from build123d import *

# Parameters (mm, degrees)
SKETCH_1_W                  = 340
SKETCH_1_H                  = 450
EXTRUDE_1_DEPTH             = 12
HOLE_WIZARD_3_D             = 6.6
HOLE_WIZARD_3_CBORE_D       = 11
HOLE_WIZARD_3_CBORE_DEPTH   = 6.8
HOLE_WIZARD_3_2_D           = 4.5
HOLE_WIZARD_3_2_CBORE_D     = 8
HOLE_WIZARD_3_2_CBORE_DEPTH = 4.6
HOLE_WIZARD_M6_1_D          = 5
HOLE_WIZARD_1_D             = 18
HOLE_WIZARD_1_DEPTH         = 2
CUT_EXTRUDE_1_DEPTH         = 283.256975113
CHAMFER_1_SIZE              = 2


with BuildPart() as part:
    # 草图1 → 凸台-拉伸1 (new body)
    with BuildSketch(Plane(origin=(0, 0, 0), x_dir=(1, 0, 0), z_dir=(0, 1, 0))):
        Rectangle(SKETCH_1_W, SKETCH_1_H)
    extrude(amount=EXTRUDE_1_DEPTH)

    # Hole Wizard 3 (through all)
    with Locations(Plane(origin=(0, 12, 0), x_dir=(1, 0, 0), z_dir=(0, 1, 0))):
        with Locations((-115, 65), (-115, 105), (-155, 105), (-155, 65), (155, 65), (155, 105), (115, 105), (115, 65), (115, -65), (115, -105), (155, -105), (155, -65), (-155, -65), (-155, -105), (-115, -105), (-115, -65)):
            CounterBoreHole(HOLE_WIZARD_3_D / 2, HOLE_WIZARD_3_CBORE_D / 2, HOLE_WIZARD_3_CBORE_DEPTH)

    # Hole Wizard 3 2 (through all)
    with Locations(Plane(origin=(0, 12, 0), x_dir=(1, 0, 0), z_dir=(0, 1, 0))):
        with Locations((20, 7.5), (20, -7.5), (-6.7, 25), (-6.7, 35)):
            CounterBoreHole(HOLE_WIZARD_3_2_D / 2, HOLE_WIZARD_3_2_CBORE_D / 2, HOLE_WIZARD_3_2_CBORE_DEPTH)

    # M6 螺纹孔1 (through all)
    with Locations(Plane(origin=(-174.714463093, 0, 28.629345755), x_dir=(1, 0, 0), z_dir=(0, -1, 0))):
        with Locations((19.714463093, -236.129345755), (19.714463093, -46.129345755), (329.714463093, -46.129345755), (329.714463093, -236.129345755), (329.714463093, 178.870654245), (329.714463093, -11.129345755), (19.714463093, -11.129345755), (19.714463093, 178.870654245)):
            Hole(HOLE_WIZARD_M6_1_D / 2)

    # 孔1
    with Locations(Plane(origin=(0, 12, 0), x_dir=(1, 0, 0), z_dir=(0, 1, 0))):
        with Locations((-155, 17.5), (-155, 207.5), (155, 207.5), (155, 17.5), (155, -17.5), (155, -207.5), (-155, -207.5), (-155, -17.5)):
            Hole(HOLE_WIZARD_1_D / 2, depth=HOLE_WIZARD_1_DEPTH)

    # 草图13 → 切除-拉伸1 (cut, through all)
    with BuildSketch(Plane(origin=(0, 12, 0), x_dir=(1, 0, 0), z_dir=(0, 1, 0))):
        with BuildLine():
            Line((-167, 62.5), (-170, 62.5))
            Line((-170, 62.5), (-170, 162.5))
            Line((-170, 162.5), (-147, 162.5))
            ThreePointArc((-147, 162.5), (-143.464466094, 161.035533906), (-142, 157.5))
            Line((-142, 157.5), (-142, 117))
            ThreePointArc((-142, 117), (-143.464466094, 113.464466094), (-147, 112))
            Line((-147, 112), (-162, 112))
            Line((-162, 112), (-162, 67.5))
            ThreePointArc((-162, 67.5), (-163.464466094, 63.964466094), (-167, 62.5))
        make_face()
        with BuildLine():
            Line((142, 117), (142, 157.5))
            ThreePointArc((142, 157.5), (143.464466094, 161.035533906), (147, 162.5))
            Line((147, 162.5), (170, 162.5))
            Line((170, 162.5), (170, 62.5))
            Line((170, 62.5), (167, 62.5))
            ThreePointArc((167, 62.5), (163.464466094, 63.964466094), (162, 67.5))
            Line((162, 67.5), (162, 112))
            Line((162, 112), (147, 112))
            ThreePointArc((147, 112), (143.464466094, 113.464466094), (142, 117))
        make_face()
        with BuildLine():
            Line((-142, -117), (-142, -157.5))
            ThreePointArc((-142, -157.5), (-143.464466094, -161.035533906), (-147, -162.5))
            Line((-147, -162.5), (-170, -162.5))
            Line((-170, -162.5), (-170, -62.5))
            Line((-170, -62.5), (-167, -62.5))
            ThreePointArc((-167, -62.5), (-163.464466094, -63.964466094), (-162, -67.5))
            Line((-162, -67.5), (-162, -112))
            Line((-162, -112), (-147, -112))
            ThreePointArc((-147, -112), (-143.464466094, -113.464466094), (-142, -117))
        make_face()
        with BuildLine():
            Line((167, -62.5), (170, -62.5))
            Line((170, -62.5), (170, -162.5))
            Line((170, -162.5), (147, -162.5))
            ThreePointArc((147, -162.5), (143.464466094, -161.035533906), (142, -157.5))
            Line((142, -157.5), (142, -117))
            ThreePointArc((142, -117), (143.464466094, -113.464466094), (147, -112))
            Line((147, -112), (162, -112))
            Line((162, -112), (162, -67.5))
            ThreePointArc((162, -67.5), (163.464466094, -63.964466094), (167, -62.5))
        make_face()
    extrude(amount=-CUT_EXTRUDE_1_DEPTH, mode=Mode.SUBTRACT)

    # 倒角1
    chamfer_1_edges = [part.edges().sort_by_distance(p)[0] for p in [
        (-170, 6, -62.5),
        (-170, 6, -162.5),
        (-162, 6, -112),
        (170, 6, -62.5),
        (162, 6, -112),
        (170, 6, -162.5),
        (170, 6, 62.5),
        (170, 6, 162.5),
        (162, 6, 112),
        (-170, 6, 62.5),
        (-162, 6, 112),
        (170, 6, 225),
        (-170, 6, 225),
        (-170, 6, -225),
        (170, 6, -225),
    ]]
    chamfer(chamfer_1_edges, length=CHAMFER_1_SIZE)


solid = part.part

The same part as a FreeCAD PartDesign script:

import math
import FreeCAD as App
import Part
import Sketcher
from FreeCAD import Vector
Q = App.Units.Quantity


def edges_at(feature, points):
    """Names of the edges that pass closest to the given points."""
    edges = feature.Shape.Edges
    near = lambda p: min(range(len(edges)), key=lambda i: edges[i].distToShape(Part.Vertex(*p))[0])
    return sorted({f"Edge{near(p) + 1}" for p in points})


def add_polygon(sketch, points):
    """Adds a closed chain of lines whose ends are joined by coincident constraints."""
    first, n = sketch.GeometryCount, len(points)
    for a, b in zip(points, points[1:] + points[:1]):
        sketch.addGeometry(Part.LineSegment(App.Vector(*a, 0), App.Vector(*b, 0)), False)
    for i in range(n):
        sketch.addConstraint(Sketcher.Constraint("Coincident", first + i, 2, first + (i + 1) % n, 1))

doc = App.newDocument("Part")
body = doc.addObject("PartDesign::Body", "Body")

# Sketch on XZ plane
sketch1 = body.newObject("Sketcher::SketchObject", "Sketch")
sketch1.AttachmentSupport = (doc.getObject("XZ_Plane"), [""])
sketch1.MapMode = "FlatFace"
add_polygon(sketch1, [(-170, -225), (-170, 225), (170, 225), (170, -225)])  # lines 0-3
sketch1.addConstraint(Sketcher.Constraint("Vertical", 0))
sketch1.addConstraint(Sketcher.Constraint("Horizontal", 1))
sketch1.addConstraint(Sketcher.Constraint("Vertical", 2))
sketch1.addConstraint(Sketcher.Constraint("Horizontal", 3))
sketch1.addConstraint(Sketcher.Constraint("Symmetric", 0, 2, 2, 2, -1, 1))
sketch1.addConstraint(Sketcher.Constraint("DistanceX", 1, 1, 1, 2, Q("340 mm")))
sketch1.addConstraint(Sketcher.Constraint("DistanceY", 0, 1, 0, 2, Q("450 mm")))
pad1 = body.newObject("PartDesign::Pad", "Pad")
pad1.Profile = sketch1
pad1.Length = 12
pad1.Reversed = True

# Sketch on XZ plane
sketch2 = body.newObject("Sketcher::SketchObject", "Sketch001")
sketch2.AttachmentSupport = (doc.getObject("XZ_Plane"), [""])
sketch2.MapMode = "FlatFace"
sketch2.AttachmentOffset = App.Placement(Vector(0, 0, -12), App.Rotation())
sketch2.addGeometry(Part.Circle(Vector(-115, -65, 0), Vector(0, 0, 1), 3.3), False)
sketch2.addGeometry(Part.Circle(Vector(-115, -105, 0), Vector(0, 0, 1), 3.3), False)
sketch2.addGeometry(Part.Circle(Vector(-155, -105, 0), Vector(0, 0, 1), 3.3), False)
sketch2.addGeometry(Part.Circle(Vector(-155, -65, 0), Vector(0, 0, 1), 3.3), False)
sketch2.addGeometry(Part.Circle(Vector(155, -65, 0), Vector(0, 0, 1), 3.3), False)
sketch2.addGeometry(Part.Circle(Vector(155, -105, 0), Vector(0, 0, 1), 3.3), False)
sketch2.addGeometry(Part.Circle(Vector(115, -105, 0), Vector(0, 0, 1), 3.3), False)
sketch2.addGeometry(Part.Circle(Vector(115, -65, 0), Vector(0, 0, 1), 3.3), False)
sketch2.addGeometry(Part.Circle(Vector(115, 65, 0), Vector(0, 0, 1), 3.3), False)
sketch2.addGeometry(Part.Circle(Vector(115, 105, 0), Vector(0, 0, 1), 3.3), False)
sketch2.addGeometry(Part.Circle(Vector(155, 105, 0), Vector(0, 0, 1), 3.3), False)
sketch2.addGeometry(Part.Circle(Vector(155, 65, 0), Vector(0, 0, 1), 3.3), False)
sketch2.addGeometry(Part.Circle(Vector(-155, 65, 0), Vector(0, 0, 1), 3.3), False)
sketch2.addGeometry(Part.Circle(Vector(-155, 105, 0), Vector(0, 0, 1), 3.3), False)
sketch2.addGeometry(Part.Circle(Vector(-115, 105, 0), Vector(0, 0, 1), 3.3), False)
sketch2.addGeometry(Part.Circle(Vector(-115, 65, 0), Vector(0, 0, 1), 3.3), False)
sketch2.addConstraint(Sketcher.Constraint("Equal", 0, 1))
sketch2.addConstraint(Sketcher.Constraint("Equal", 1, 2))
sketch2.addConstraint(Sketcher.Constraint("Equal", 2, 3))
sketch2.addConstraint(Sketcher.Constraint("Equal", 3, 4))
sketch2.addConstraint(Sketcher.Constraint("Equal", 4, 5))
sketch2.addConstraint(Sketcher.Constraint("Equal", 5, 6))
sketch2.addConstraint(Sketcher.Constraint("Equal", 6, 7))
sketch2.addConstraint(Sketcher.Constraint("Equal", 7, 8))
sketch2.addConstraint(Sketcher.Constraint("Equal", 8, 9))
sketch2.addConstraint(Sketcher.Constraint("Equal", 9, 10))
sketch2.addConstraint(Sketcher.Constraint("Equal", 10, 11))
sketch2.addConstraint(Sketcher.Constraint("Equal", 11, 12))
sketch2.addConstraint(Sketcher.Constraint("Equal", 12, 13))
sketch2.addConstraint(Sketcher.Constraint("Equal", 13, 14))
sketch2.addConstraint(Sketcher.Constraint("Equal", 14, 15))
sketch2.addConstraint(Sketcher.Constraint("Symmetric", 0, 3, 8, 3, -1, 1))
sketch2.addConstraint(Sketcher.Constraint("Symmetric", 1, 3, 9, 3, -1, 1))
sketch2.addConstraint(Sketcher.Constraint("Symmetric", 2, 3, 10, 3, -1, 1))
sketch2.addConstraint(Sketcher.Constraint("Symmetric", 3, 3, 11, 3, -1, 1))
sketch2.addConstraint(Sketcher.Constraint("Symmetric", 4, 3, 12, 3, -1, 1))
sketch2.addConstraint(Sketcher.Constraint("Symmetric", 5, 3, 13, 3, -1, 1))
sketch2.addConstraint(Sketcher.Constraint("Symmetric", 6, 3, 14, 3, -1, 1))
sketch2.addConstraint(Sketcher.Constraint("Symmetric", 7, 3, 15, 3, -1, 1))
sketch2.addConstraint(Sketcher.Constraint("Symmetric", 3, 3, 4, 3, -2))
sketch2.addConstraint(Sketcher.Constraint("Symmetric", 2, 3, 5, 3, -2))
sketch2.addConstraint(Sketcher.Constraint("Symmetric", 1, 3, 6, 3, -2))
sketch2.addConstraint(Sketcher.Constraint("Symmetric", 0, 3, 7, 3, -2))
sketch2.addConstraint(Sketcher.Constraint("Horizontal", 1, 3, 2, 3))
sketch2.addConstraint(Sketcher.Constraint("Horizontal", 0, 3, 3, 3))
sketch2.addConstraint(Sketcher.Constraint("Vertical", 0, 3, 1, 3))
sketch2.addConstraint(Sketcher.Constraint("Vertical", 2, 3, 3, 3))
sketch2.addConstraint(Sketcher.Constraint("Diameter", 0, Q("6.6 mm")))
sketch2.addConstraint(Sketcher.Constraint("DistanceX", 0, 3, -1, 1, Q("115 mm")))
sketch2.addConstraint(Sketcher.Constraint("DistanceY", 0, 3, -1, 1, Q("65 mm")))
sketch2.addConstraint(Sketcher.Constraint("DistanceY", 1, 3, -1, 1, Q("105 mm")))
sketch2.addConstraint(Sketcher.Constraint("DistanceX", 2, 3, -1, 1, Q("155 mm")))
doc.recompute()
hole = body.newObject("PartDesign::Hole", "Hole")
hole.Profile = sketch2
hole.ThreadType = "None"
hole.Diameter = 6.6
hole.DepthType = "ThroughAll"
hole.HoleCutType = "Counterbore"
hole.HoleCutDiameter = 11
hole.HoleCutDepth = 6.8
hole.Reversed = True

# Sketch on XZ plane
sketch3 = body.newObject("Sketcher::SketchObject", "Sketch002")
sketch3.AttachmentSupport = (doc.getObject("XZ_Plane"), [""])
sketch3.MapMode = "FlatFace"
sketch3.AttachmentOffset = App.Placement(Vector(0, 0, -12), App.Rotation())
sketch3.addGeometry(Part.Circle(Vector(20, -7.5, 0), Vector(0, 0, 1), 2.2), False)
sketch3.addGeometry(Part.Circle(Vector(20, 7.5, 0), Vector(0, 0, 1), 2.2), False)
sketch3.addGeometry(Part.Circle(Vector(-6.7, -25, 0), Vector(0, 0, 1), 2.2), False)
sketch3.addGeometry(Part.Circle(Vector(-6.7, -35, 0), Vector(0, 0, 1), 2.2), False)
sketch3.addConstraint(Sketcher.Constraint("Equal", 0, 1))
sketch3.addConstraint(Sketcher.Constraint("Equal", 1, 2))
sketch3.addConstraint(Sketcher.Constraint("Equal", 2, 3))
sketch3.addConstraint(Sketcher.Constraint("Symmetric", 0, 3, 1, 3, -1))
sketch3.addConstraint(Sketcher.Constraint("Vertical", 2, 3, 3, 3))
sketch3.addConstraint(Sketcher.Constraint("Diameter", 0, Q("4.5 mm")))
sketch3.addConstraint(Sketcher.Constraint("DistanceX", -1, 1, 0, 3, Q("20 mm")))
sketch3.addConstraint(Sketcher.Constraint("DistanceY", 2, 3, -1, 1, Q("25 mm")))
sketch3.addConstraint(Sketcher.Constraint("DistanceY", 3, 3, -1, 1, Q("35 mm")))
sketch3.addConstraint(Sketcher.Constraint("DistanceY", 0, 3, 1, 3, Q("15 mm")))
sketch3.addConstraint(Sketcher.Constraint("DistanceX", 2, 3, -1, 1, Q("6.7 mm")))
doc.recompute()
hole2 = body.newObject("PartDesign::Hole", "Hole001")
hole2.Profile = sketch3
hole2.ThreadType = "None"
hole2.Diameter = 4.5
hole2.DepthType = "ThroughAll"
hole2.HoleCutType = "Counterbore"
hole2.HoleCutDiameter = 8
hole2.HoleCutDepth = 4.6
hole2.Reversed = True

# Sketch on XZ plane
sketch4 = body.newObject("Sketcher::SketchObject", "Sketch003")
sketch4.AttachmentSupport = (doc.getObject("XZ_Plane"), [""])
sketch4.MapMode = "FlatFace"
sketch4.addGeometry(Part.Circle(Vector(-155, -207.5, 0), Vector(0, 0, 1), 2.5), False)
sketch4.addGeometry(Part.Circle(Vector(-155, -17.5, 0), Vector(0, 0, 1), 2.5), False)
sketch4.addGeometry(Part.Circle(Vector(155, -17.5, 0), Vector(0, 0, 1), 2.5), False)
sketch4.addGeometry(Part.Circle(Vector(155, -207.5, 0), Vector(0, 0, 1), 2.5), False)
sketch4.addGeometry(Part.Circle(Vector(155, 207.5, 0), Vector(0, 0, 1), 2.5), False)
sketch4.addGeometry(Part.Circle(Vector(155, 17.5, 0), Vector(0, 0, 1), 2.5), False)
sketch4.addGeometry(Part.Circle(Vector(-155, 17.5, 0), Vector(0, 0, 1), 2.5), False)
sketch4.addGeometry(Part.Circle(Vector(-155, 207.5, 0), Vector(0, 0, 1), 2.5), False)
sketch4.addConstraint(Sketcher.Constraint("Equal", 0, 1))
sketch4.addConstraint(Sketcher.Constraint("Equal", 1, 2))
sketch4.addConstraint(Sketcher.Constraint("Equal", 2, 3))
sketch4.addConstraint(Sketcher.Constraint("Equal", 3, 4))
sketch4.addConstraint(Sketcher.Constraint("Equal", 4, 5))
sketch4.addConstraint(Sketcher.Constraint("Equal", 5, 6))
sketch4.addConstraint(Sketcher.Constraint("Equal", 6, 7))
sketch4.addConstraint(Sketcher.Constraint("Symmetric", 0, 3, 4, 3, -1, 1))
sketch4.addConstraint(Sketcher.Constraint("Symmetric", 1, 3, 5, 3, -1, 1))
sketch4.addConstraint(Sketcher.Constraint("Symmetric", 2, 3, 6, 3, -1, 1))
sketch4.addConstraint(Sketcher.Constraint("Symmetric", 3, 3, 7, 3, -1, 1))
sketch4.addConstraint(Sketcher.Constraint("Symmetric", 1, 3, 2, 3, -2))
sketch4.addConstraint(Sketcher.Constraint("Symmetric", 0, 3, 3, 3, -2))
sketch4.addConstraint(Sketcher.Constraint("Vertical", 0, 3, 1, 3))
sketch4.addConstraint(Sketcher.Constraint("Diameter", 0, Q("5 mm")))
sketch4.addConstraint(Sketcher.Constraint("DistanceX", 0, 3, -1, 1, Q("155 mm")))
sketch4.addConstraint(Sketcher.Constraint("DistanceY", 0, 3, 1, 3, Q("190 mm")))
sketch4.addConstraint(Sketcher.Constraint("DistanceY", 2, 3, 4, 3, Q("225 mm")))
doc.recompute()
hole3 = body.newObject("PartDesign::Hole", "Hole002")
hole3.Profile = sketch4
hole3.ThreadType = "None"
hole3.Diameter = 5
hole3.DepthType = "ThroughAll"

# Sketch on XZ plane
sketch5 = body.newObject("Sketcher::SketchObject", "Sketch004")
sketch5.AttachmentSupport = (doc.getObject("XZ_Plane"), [""])
sketch5.MapMode = "FlatFace"
sketch5.AttachmentOffset = App.Placement(Vector(0, 0, -12), App.Rotation())
sketch5.addGeometry(Part.Circle(Vector(-155, -18, 0), Vector(0, 0, 1), 9), False)
sketch5.addGeometry(Part.Circle(Vector(-155, -208, 0), Vector(0, 0, 1), 9), False)
sketch5.addGeometry(Part.Circle(Vector(155, -208, 0), Vector(0, 0, 1), 9), False)
sketch5.addGeometry(Part.Circle(Vector(155, -18, 0), Vector(0, 0, 1), 9), False)
sketch5.addGeometry(Part.Circle(Vector(155, 18, 0), Vector(0, 0, 1), 9), False)
sketch5.addGeometry(Part.Circle(Vector(155, 208, 0), Vector(0, 0, 1), 9), False)
sketch5.addGeometry(Part.Circle(Vector(-155, 208, 0), Vector(0, 0, 1), 9), False)
sketch5.addGeometry(Part.Circle(Vector(-155, 18, 0), Vector(0, 0, 1), 9), False)
sketch5.addConstraint(Sketcher.Constraint("Equal", 0, 1))
sketch5.addConstraint(Sketcher.Constraint("Equal", 1, 2))
sketch5.addConstraint(Sketcher.Constraint("Equal", 2, 3))
sketch5.addConstraint(Sketcher.Constraint("Equal", 3, 4))
sketch5.addConstraint(Sketcher.Constraint("Equal", 4, 5))
sketch5.addConstraint(Sketcher.Constraint("Equal", 5, 6))
sketch5.addConstraint(Sketcher.Constraint("Equal", 6, 7))
sketch5.addConstraint(Sketcher.Constraint("Symmetric", 0, 3, 4, 3, -1, 1))
sketch5.addConstraint(Sketcher.Constraint("Symmetric", 1, 3, 5, 3, -1, 1))
sketch5.addConstraint(Sketcher.Constraint("Symmetric", 2, 3, 6, 3, -1, 1))
sketch5.addConstraint(Sketcher.Constraint("Symmetric", 3, 3, 7, 3, -1, 1))
sketch5.addConstraint(Sketcher.Constraint("Symmetric", 1, 3, 2, 3, -2))
sketch5.addConstraint(Sketcher.Constraint("Symmetric", 0, 3, 3, 3, -2))
sketch5.addConstraint(Sketcher.Constraint("Vertical", 0, 3, 1, 3))
sketch5.addConstraint(Sketcher.Constraint("Diameter", 0, Q("18 mm")))
sketch5.addConstraint(Sketcher.Constraint("DistanceX", 0, 3, -1, 1, Q("155 mm")))
sketch5.addConstraint(Sketcher.Constraint("DistanceY", 1, 3, 0, 3, Q("190 mm")))
sketch5.addConstraint(Sketcher.Constraint("DistanceY", 3, 3, 4, 3, Q("35 mm")))
doc.recompute()
hole4 = body.newObject("PartDesign::Hole", "Hole003")
hole4.Profile = sketch5
hole4.ThreadType = "None"
hole4.Diameter = 18
hole4.DepthType = "Dimension"
hole4.Depth = 2
hole4.DrillPoint = "Flat"
hole4.Reversed = True

# Sketch on XZ plane
sketch6 = body.newObject("Sketcher::SketchObject", "Sketch005")
sketch6.AttachmentSupport = (doc.getObject("XZ_Plane"), [""])
sketch6.MapMode = "FlatFace"
sketch6.AttachmentOffset = App.Placement(Vector(0, 0, -12), App.Rotation())
sketch6.addGeometry(Part.LineSegment(Vector(-170, -62.5, 0), Vector(-167, -62.5, 0)), False)
sketch6.addGeometry(Part.ArcOfCircle(Part.Circle(Vector(-167, -67.5, 0), Vector(0, 0, 1), 5), math.radians(0), math.radians(90)), False)
sketch6.addGeometry(Part.LineSegment(Vector(-162, -67.5, 0), Vector(-162, -112, 0)), False)
sketch6.addGeometry(Part.LineSegment(Vector(-162, -112, 0), Vector(-147, -112, 0)), False)
sketch6.addGeometry(Part.ArcOfCircle(Part.Circle(Vector(-147, -117, 0), Vector(0, 0, 1), 5), math.radians(0), math.radians(90)), False)
sketch6.addGeometry(Part.LineSegment(Vector(-142, -117, 0), Vector(-142, -157.5, 0)), False)
sketch6.addGeometry(Part.ArcOfCircle(Part.Circle(Vector(-147, -157.5, 0), Vector(0, 0, 1), 5), math.radians(-90), math.radians(0)), False)
sketch6.addGeometry(Part.LineSegment(Vector(-147, -162.5, 0), Vector(-170, -162.5, 0)), False)
sketch6.addGeometry(Part.LineSegment(Vector(-170, -162.5, 0), Vector(-170, -62.5, 0)), False)
sketch6.addGeometry(Part.LineSegment(Vector(142, -157.5, 0), Vector(142, -117, 0)), False)
sketch6.addGeometry(Part.ArcOfCircle(Part.Circle(Vector(147, -117, 0), Vector(0, 0, 1), 5), math.radians(90), math.radians(180)), False)
sketch6.addGeometry(Part.LineSegment(Vector(147, -112, 0), Vector(162, -112, 0)), False)
sketch6.addGeometry(Part.LineSegment(Vector(162, -112, 0), Vector(162, -67.5, 0)), False)
sketch6.addGeometry(Part.ArcOfCircle(Part.Circle(Vector(167, -67.5, 0), Vector(0, 0, 1), 5), math.radians(90), math.radians(180)), False)
sketch6.addGeometry(Part.LineSegment(Vector(167, -62.5, 0), Vector(170, -62.5, 0)), False)
sketch6.addGeometry(Part.LineSegment(Vector(170, -62.5, 0), Vector(170, -162.5, 0)), False)
sketch6.addGeometry(Part.LineSegment(Vector(170, -162.5, 0), Vector(147, -162.5, 0)), False)
sketch6.addGeometry(Part.ArcOfCircle(Part.Circle(Vector(147, -157.5, 0), Vector(0, 0, 1), 5), math.radians(180), math.radians(270)), False)
sketch6.addGeometry(Part.LineSegment(Vector(-142, 157.5, 0), Vector(-142, 117, 0)), False)
sketch6.addGeometry(Part.ArcOfCircle(Part.Circle(Vector(-147, 117, 0), Vector(0, 0, 1), 5), math.radians(-90), math.radians(0)), False)
sketch6.addGeometry(Part.LineSegment(Vector(-147, 112, 0), Vector(-162, 112, 0)), False)
sketch6.addGeometry(Part.LineSegment(Vector(-162, 112, 0), Vector(-162, 67.5, 0)), False)
sketch6.addGeometry(Part.ArcOfCircle(Part.Circle(Vector(-167, 67.5, 0), Vector(0, 0, 1), 5), math.radians(-90), math.radians(0)), False)
sketch6.addGeometry(Part.LineSegment(Vector(-167, 62.5, 0), Vector(-170, 62.5, 0)), False)
sketch6.addGeometry(Part.LineSegment(Vector(-170, 62.5, 0), Vector(-170, 162.5, 0)), False)
sketch6.addGeometry(Part.LineSegment(Vector(-170, 162.5, 0), Vector(-147, 162.5, 0)), False)
sketch6.addGeometry(Part.ArcOfCircle(Part.Circle(Vector(-147, 157.5, 0), Vector(0, 0, 1), 5), math.radians(0), math.radians(90)), False)
sketch6.addGeometry(Part.LineSegment(Vector(170, 62.5, 0), Vector(167, 62.5, 0)), False)
sketch6.addGeometry(Part.ArcOfCircle(Part.Circle(Vector(167, 67.5, 0), Vector(0, 0, 1), 5), math.radians(180), math.radians(270)), False)
sketch6.addGeometry(Part.LineSegment(Vector(162, 67.5, 0), Vector(162, 112, 0)), False)
sketch6.addGeometry(Part.LineSegment(Vector(162, 112, 0), Vector(147, 112, 0)), False)
sketch6.addGeometry(Part.ArcOfCircle(Part.Circle(Vector(147, 117, 0), Vector(0, 0, 1), 5), math.radians(180), math.radians(270)), False)
sketch6.addGeometry(Part.LineSegment(Vector(142, 117, 0), Vector(142, 157.5, 0)), False)
sketch6.addGeometry(Part.ArcOfCircle(Part.Circle(Vector(147, 157.5, 0), Vector(0, 0, 1), 5), math.radians(90), math.radians(180)), False)
sketch6.addGeometry(Part.LineSegment(Vector(147, 162.5, 0), Vector(170, 162.5, 0)), False)
sketch6.addGeometry(Part.LineSegment(Vector(170, 162.5, 0), Vector(170, 62.5, 0)), False)
sketch6.addConstraint(Sketcher.Constraint("Tangent", 0, 2, 1, 2))
sketch6.addConstraint(Sketcher.Constraint("Tangent", 1, 1, 2, 1))
sketch6.addConstraint(Sketcher.Constraint("Coincident", 2, 2, 3, 1))
sketch6.addConstraint(Sketcher.Constraint("Tangent", 3, 2, 4, 2))
sketch6.addConstraint(Sketcher.Constraint("Tangent", 4, 1, 5, 1))
sketch6.addConstraint(Sketcher.Constraint("Tangent", 5, 2, 6, 2))
sketch6.addConstraint(Sketcher.Constraint("Tangent", 6, 1, 7, 1))
sketch6.addConstraint(Sketcher.Constraint("Coincident", 7, 2, 8, 1))
sketch6.addConstraint(Sketcher.Constraint("Coincident", 8, 2, 0, 1))
sketch6.addConstraint(Sketcher.Constraint("Tangent", 9, 2, 10, 2))
sketch6.addConstraint(Sketcher.Constraint("Tangent", 10, 1, 11, 1))
sketch6.addConstraint(Sketcher.Constraint("Coincident", 11, 2, 12, 1))
sketch6.addConstraint(Sketcher.Constraint("Tangent", 12, 2, 13, 2))
sketch6.addConstraint(Sketcher.Constraint("Tangent", 13, 1, 14, 1))
sketch6.addConstraint(Sketcher.Constraint("Coincident", 14, 2, 15, 1))
sketch6.addConstraint(Sketcher.Constraint("Coincident", 15, 2, 16, 1))
sketch6.addConstraint(Sketcher.Constraint("Tangent", 16, 2, 17, 2))
sketch6.addConstraint(Sketcher.Constraint("Tangent", 17, 1, 9, 1))
sketch6.addConstraint(Sketcher.Constraint("Tangent", 18, 2, 19, 2))
sketch6.addConstraint(Sketcher.Constraint("Tangent", 19, 1, 20, 1))
sketch6.addConstraint(Sketcher.Constraint("Coincident", 20, 2, 21, 1))
sketch6.addConstraint(Sketcher.Constraint("Tangent", 21, 2, 22, 2))
sketch6.addConstraint(Sketcher.Constraint("Tangent", 22, 1, 23, 1))
sketch6.addConstraint(Sketcher.Constraint("Coincident", 23, 2, 24, 1))
sketch6.addConstraint(Sketcher.Constraint("Coincident", 24, 2, 25, 1))
sketch6.addConstraint(Sketcher.Constraint("Tangent", 25, 2, 26, 2))
sketch6.addConstraint(Sketcher.Constraint("Tangent", 26, 1, 18, 1))
sketch6.addConstraint(Sketcher.Constraint("Tangent", 27, 2, 28, 2))
sketch6.addConstraint(Sketcher.Constraint("Tangent", 28, 1, 29, 1))
sketch6.addConstraint(Sketcher.Constraint("Coincident", 29, 2, 30, 1))
sketch6.addConstraint(Sketcher.Constraint("Tangent", 30, 2, 31, 2))
sketch6.addConstraint(Sketcher.Constraint("Tangent", 31, 1, 32, 1))
sketch6.addConstraint(Sketcher.Constraint("Tangent", 32, 2, 33, 2))
sketch6.addConstraint(Sketcher.Constraint("Tangent", 33, 1, 34, 1))
sketch6.addConstraint(Sketcher.Constraint("Coincident", 34, 2, 35, 1))
sketch6.addConstraint(Sketcher.Constraint("Coincident", 35, 2, 27, 1))
sketch6.addConstraint(Sketcher.Constraint("Horizontal", 0))
sketch6.addConstraint(Sketcher.Constraint("Vertical", 2))
sketch6.addConstraint(Sketcher.Constraint("Horizontal", 3))
sketch6.addConstraint(Sketcher.Constraint("Vertical", 5))
sketch6.addConstraint(Sketcher.Constraint("Horizontal", 7))
sketch6.addConstraint(Sketcher.Constraint("Vertical", 8))
sketch6.addConstraint(Sketcher.Constraint("Vertical", 9))
sketch6.addConstraint(Sketcher.Constraint("Horizontal", 11))
sketch6.addConstraint(Sketcher.Constraint("Vertical", 12))
sketch6.addConstraint(Sketcher.Constraint("Horizontal", 14))
sketch6.addConstraint(Sketcher.Constraint("Vertical", 15))
sketch6.addConstraint(Sketcher.Constraint("Horizontal", 16))
sketch6.addConstraint(Sketcher.Constraint("Vertical", 18))
sketch6.addConstraint(Sketcher.Constraint("Horizontal", 20))
sketch6.addConstraint(Sketcher.Constraint("Vertical", 21))
sketch6.addConstraint(Sketcher.Constraint("Horizontal", 23))
sketch6.addConstraint(Sketcher.Constraint("Vertical", 24))
sketch6.addConstraint(Sketcher.Constraint("Horizontal", 25))
sketch6.addConstraint(Sketcher.Constraint("Horizontal", 27))
sketch6.addConstraint(Sketcher.Constraint("Vertical", 29))
sketch6.addConstraint(Sketcher.Constraint("Horizontal", 30))
sketch6.addConstraint(Sketcher.Constraint("Vertical", 32))
sketch6.addConstraint(Sketcher.Constraint("Horizontal", 34))
sketch6.addConstraint(Sketcher.Constraint("Vertical", 35))
sketch6.addConstraint(Sketcher.Constraint("Equal", 1, 4))
sketch6.addConstraint(Sketcher.Constraint("Equal", 4, 6))
sketch6.addConstraint(Sketcher.Constraint("Equal", 6, 10))
sketch6.addConstraint(Sketcher.Constraint("Equal", 10, 13))
sketch6.addConstraint(Sketcher.Constraint("Equal", 13, 17))
sketch6.addConstraint(Sketcher.Constraint("Equal", 17, 19))
sketch6.addConstraint(Sketcher.Constraint("Equal", 19, 22))
sketch6.addConstraint(Sketcher.Constraint("Equal", 22, 26))
sketch6.addConstraint(Sketcher.Constraint("Equal", 26, 28))
sketch6.addConstraint(Sketcher.Constraint("Equal", 28, 31))
sketch6.addConstraint(Sketcher.Constraint("Equal", 31, 33))
sketch6.addConstraint(Sketcher.Constraint("Symmetric", 10, 3, 19, 3, -1, 1))
sketch6.addConstraint(Sketcher.Constraint("Symmetric", 13, 3, 22, 3, -1, 1))
sketch6.addConstraint(Sketcher.Constraint("Symmetric", 1, 3, 28, 3, -1, 1))
sketch6.addConstraint(Sketcher.Constraint("Symmetric", 4, 3, 31, 3, -1, 1))
sketch6.addConstraint(Sketcher.Constraint("Symmetric", 15, 2, 24, 2, -1, 1))
sketch6.addConstraint(Sketcher.Constraint("Symmetric", 7, 2, 34, 2, -1, 1))
sketch6.addConstraint(Sketcher.Constraint("Symmetric", 4, 3, 10, 3, -2))
sketch6.addConstraint(Sketcher.Constraint("Symmetric", 1, 3, 13, 3, -2))
sketch6.addConstraint(Sketcher.Constraint("Symmetric", 7, 2, 15, 2, -2))
sketch6.addConstraint(Sketcher.Constraint("Radius", 1, Q("5 mm")))
sketch6.addConstraint(Sketcher.Constraint("DistanceX", 0, 1, 0, 2, Q("3 mm")))
sketch6.addConstraint(Sketcher.Constraint("DistanceX", 3, 1, 3, 2, Q("15 mm")))
sketch6.addConstraint(Sketcher.Constraint("DistanceY", 8, 1, 8, 2, Q("100 mm")))
sketch6.addConstraint(Sketcher.Constraint("DistanceY", 2, 2, 2, 1, Q("44.5 mm")))
sketch6.addConstraint(Sketcher.Constraint("DistanceX", 1, 3, -1, 1, Q("167 mm")))
sketch6.addConstraint(Sketcher.Constraint("DistanceY", 4, 3, -1, 1, Q("117 mm")))
pocket1 = body.newObject("PartDesign::Pocket", "Pocket")
pocket1.Profile = sketch6
pocket1.Type = "ThroughAll"
pocket1.Reversed = True
doc.recompute()

chamfer = body.newObject("PartDesign::Chamfer", "Chamfer")
chamfer.Base = (pocket1, edges_at(pocket1, [
    (-170, 6, -62.5),
    (-170, 6, -162.5),
    (-162, 6, -112),
    (170, 6, -62.5),
    (162, 6, -112),
    (170, 6, -162.5),
    (170, 6, 62.5),
    (170, 6, 162.5),
    (162, 6, 112),
    (-170, 6, 62.5),
    (-162, 6, 112),
    (170, 6, 225),
    (-170, 6, 225),
    (-170, 6, -225),
    (170, 6, -225),
]))
chamfer.Size = 2

doc.recompute()
